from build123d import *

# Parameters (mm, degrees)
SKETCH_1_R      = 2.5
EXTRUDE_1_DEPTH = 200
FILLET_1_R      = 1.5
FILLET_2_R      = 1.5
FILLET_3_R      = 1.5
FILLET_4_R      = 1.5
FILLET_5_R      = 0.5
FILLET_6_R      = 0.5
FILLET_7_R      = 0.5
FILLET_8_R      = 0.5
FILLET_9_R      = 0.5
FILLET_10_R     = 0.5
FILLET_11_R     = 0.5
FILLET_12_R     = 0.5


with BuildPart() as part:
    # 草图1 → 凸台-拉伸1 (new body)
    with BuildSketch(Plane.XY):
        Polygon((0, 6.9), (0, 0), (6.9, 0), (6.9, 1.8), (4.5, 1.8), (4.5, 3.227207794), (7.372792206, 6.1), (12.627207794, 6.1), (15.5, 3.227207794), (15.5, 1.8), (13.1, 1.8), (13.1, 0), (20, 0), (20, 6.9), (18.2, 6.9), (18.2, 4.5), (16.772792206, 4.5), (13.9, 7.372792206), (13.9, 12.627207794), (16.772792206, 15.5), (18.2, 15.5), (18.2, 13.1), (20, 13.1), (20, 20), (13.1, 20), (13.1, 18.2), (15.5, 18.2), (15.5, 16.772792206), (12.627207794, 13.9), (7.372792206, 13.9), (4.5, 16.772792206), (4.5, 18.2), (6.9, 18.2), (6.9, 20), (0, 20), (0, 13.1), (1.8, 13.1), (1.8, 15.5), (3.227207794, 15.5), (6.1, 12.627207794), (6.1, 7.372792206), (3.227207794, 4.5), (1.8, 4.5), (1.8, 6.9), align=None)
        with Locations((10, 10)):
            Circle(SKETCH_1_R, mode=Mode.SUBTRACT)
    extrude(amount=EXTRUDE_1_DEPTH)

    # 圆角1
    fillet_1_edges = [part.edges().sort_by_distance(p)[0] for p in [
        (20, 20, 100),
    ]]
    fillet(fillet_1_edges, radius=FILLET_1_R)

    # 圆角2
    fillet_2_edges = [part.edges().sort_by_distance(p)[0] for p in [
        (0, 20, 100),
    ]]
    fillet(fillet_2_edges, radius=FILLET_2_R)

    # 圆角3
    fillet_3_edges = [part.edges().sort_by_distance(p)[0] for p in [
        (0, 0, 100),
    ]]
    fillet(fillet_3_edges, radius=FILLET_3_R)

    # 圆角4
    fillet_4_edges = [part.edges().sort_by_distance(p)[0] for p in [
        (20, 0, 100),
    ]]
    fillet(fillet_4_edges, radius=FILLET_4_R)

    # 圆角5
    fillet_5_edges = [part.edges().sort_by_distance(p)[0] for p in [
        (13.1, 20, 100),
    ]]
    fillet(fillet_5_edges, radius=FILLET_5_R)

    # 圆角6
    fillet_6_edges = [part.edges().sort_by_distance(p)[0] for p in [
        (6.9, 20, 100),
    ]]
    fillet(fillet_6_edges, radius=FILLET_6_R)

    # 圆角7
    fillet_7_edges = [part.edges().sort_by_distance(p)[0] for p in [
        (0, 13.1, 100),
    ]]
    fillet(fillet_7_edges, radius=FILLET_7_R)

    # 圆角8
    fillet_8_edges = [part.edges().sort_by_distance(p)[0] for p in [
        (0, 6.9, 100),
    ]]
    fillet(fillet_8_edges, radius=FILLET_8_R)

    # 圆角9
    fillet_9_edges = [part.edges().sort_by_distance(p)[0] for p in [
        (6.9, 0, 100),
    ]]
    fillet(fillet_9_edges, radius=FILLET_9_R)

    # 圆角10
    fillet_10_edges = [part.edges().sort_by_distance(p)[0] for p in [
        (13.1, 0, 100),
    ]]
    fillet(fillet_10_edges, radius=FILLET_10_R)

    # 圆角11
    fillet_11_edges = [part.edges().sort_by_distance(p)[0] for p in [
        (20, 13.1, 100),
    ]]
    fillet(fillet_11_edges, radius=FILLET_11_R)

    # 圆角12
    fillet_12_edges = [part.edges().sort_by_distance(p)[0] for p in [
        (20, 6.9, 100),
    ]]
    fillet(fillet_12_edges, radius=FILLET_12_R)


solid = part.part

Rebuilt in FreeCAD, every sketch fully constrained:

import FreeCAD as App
import Part
import Sketcher

V = App.Vector


def edges_at(feature, points):
    """Names of the edges that pass closest to the given points."""
    edges = feature.Shape.Edges
    near = lambda p: min(range(len(edges)), key=lambda i: edges[i].distToShape(Part.Vertex(*p))[0])
    return sorted({f"Edge{near(p) + 1}" for p in points})

doc = App.newDocument("Part")
body = doc.addObject("PartDesign::Body", "Body")

# Sketch on XY plane
sketch1 = doc.addObject("Sketcher::SketchObject", "Sketch")
body.addObject(sketch1)
sketch1.AttachmentSupport = (doc.XY_Plane, [""])
sketch1.MapMode = "FlatFace"
sketch1.addGeometry(Part.LineSegment(V(0, 6.9, 0), V(0, 0, 0)), False)
sketch1.addGeometry(Part.LineSegment(V(0, 0, 0), V(6.9, 0, 0)), False)
sketch1.addGeometry(Part.LineSegment(V(6.9, 0, 0), V(6.9, 1.8, 0)), False)
sketch1.addGeometry(Part.LineSegment(V(6.9, 1.8, 0), V(4.5, 1.8, 0)), False)
sketch1.addGeometry(Part.LineSegment(V(4.5, 1.8, 0), V(4.5, 3.227208, 0)), False)
sketch1.addGeometry(Part.LineSegment(V(4.5, 3.227208, 0), V(7.372792, 6.1, 0)), False)
sketch1.addGeometry(Part.LineSegment(V(7.372792, 6.1, 0), V(12.627208, 6.1, 0)), False)
sketch1.addGeometry(Part.LineSegment(V(12.627208, 6.1, 0), V(15.5, 3.227208, 0)), False)
sketch1.addGeometry(Part.LineSegment(V(15.5, 3.227208, 0), V(15.5, 1.8, 0)), False)
sketch1.addGeometry(Part.LineSegment(V(15.5, 1.8, 0), V(13.1, 1.8, 0)), False)
sketch1.addGeometry(Part.LineSegment(V(13.1, 1.8, 0), V(13.1, 0, 0)), False)
sketch1.addGeometry(Part.LineSegment(V(13.1, 0, 0), V(20, 0, 0)), False)
sketch1.addGeometry(Part.LineSegment(V(20, 0, 0), V(20, 6.9, 0)), False)
sketch1.addGeometry(Part.LineSegment(V(20, 6.9, 0), V(18.2, 6.9, 0)), False)
sketch1.addGeometry(Part.LineSegment(V(18.2, 6.9, 0), V(18.2, 4.5, 0)), False)
sketch1.addGeometry(Part.LineSegment(V(18.2, 4.5, 0), V(16.772792, 4.5, 0)), False)
sketch1.addGeometry(Part.LineSegment(V(16.772792, 4.5, 0), V(13.9, 7.372792, 0)), False)
sketch1.addGeometry(Part.LineSegment(V(13.9, 7.372792, 0), V(13.9, 12.627208, 0)), False)
sketch1.addGeometry(Part.LineSegment(V(13.9, 12.627208, 0), V(16.772792, 15.5, 0)), False)
sketch1.addGeometry(Part.LineSegment(V(16.772792, 15.5, 0), V(18.2, 15.5, 0)), False)
sketch1.addGeometry(Part.LineSegment(V(18.2, 15.5, 0), V(18.2, 13.1, 0)), False)
sketch1.addGeometry(Part.LineSegment(V(18.2, 13.1, 0), V(20, 13.1, 0)), False)
sketch1.addGeometry(Part.LineSegment(V(20, 13.1, 0), V(20, 20, 0)), False)
sketch1.addGeometry(Part.LineSegment(V(20, 20, 0), V(13.1, 20, 0)), False)
sketch1.addGeometry(Part.LineSegment(V(13.1, 20, 0), V(13.1, 18.2, 0)), False)
sketch1.addGeometry(Part.LineSegment(V(13.1, 18.2, 0), V(15.5, 18.2, 0)), False)
sketch1.addGeometry(Part.LineSegment(V(15.5, 18.2, 0), V(15.5, 16.772792, 0)), False)
sketch1.addGeometry(Part.LineSegment(V(15.5, 16.772792, 0), V(12.627208, 13.9, 0)), False)
sketch1.addGeometry(Part.LineSegment(V(12.627208, 13.9, 0), V(7.372792, 13.9, 0)), False)
sketch1.addGeometry(Part.LineSegment(V(7.372792, 13.9, 0), V(4.5, 16.772792, 0)), False)
sketch1.addGeometry(Part.LineSegment(V(4.5, 16.772792, 0), V(4.5, 18.2, 0)), False)
sketch1.addGeometry(Part.LineSegment(V(4.5, 18.2, 0), V(6.9, 18.2, 0)), False)
sketch1.addGeometry(Part.LineSegment(V(6.9, 18.2, 0), V(6.9, 20, 0)), False)
sketch1.addGeometry(Part.LineSegment(V(6.9, 20, 0), V(0, 20, 0)), False)
sketch1.addGeometry(Part.LineSegment(V(0, 20, 0), V(0, 13.1, 0)), False)
sketch1.addGeometry(Part.LineSegment(V(0, 13.1, 0), V(1.8, 13.1, 0)), False)
sketch1.addGeometry(Part.LineSegment(V(1.8, 13.1, 0), V(1.8, 15.5, 0)), False)
sketch1.addGeometry(Part.LineSegment(V(1.8, 15.5, 0), V(3.227208, 15.5, 0)), False)
sketch1.addGeometry(Part.LineSegment(V(3.227208, 15.5, 0), V(6.1, 12.627208, 0)), False)
sketch1.addGeometry(Part.LineSegment(V(6.1, 12.627208, 0), V(6.1, 7.372792, 0)), False)
sketch1.addGeometry(Part.LineSegment(V(6.1, 7.372792, 0), V(3.227208, 4.5, 0)), False)
sketch1.addGeometry(Part.LineSegment(V(3.227208, 4.5, 0), V(1.8, 4.5, 0)), False)
sketch1.addGeometry(Part.LineSegment(V(1.8, 4.5, 0), V(1.8, 6.9, 0)), False)
sketch1.addGeometry(Part.LineSegment(V(1.8, 6.9, 0), V(0, 6.9, 0)), False)
sketch1.addGeometry(Part.Circle(V(10, 10, 0), V(0, 0, 1), 2.5), False)
sketch1.addConstraint(Sketcher.Constraint("Coincident", 0, 2, 1, 1))
sketch1.addConstraint(Sketcher.Constraint("Coincident", 1, 2, 2, 1))
sketch1.addConstraint(Sketcher.Constraint("Coincident", 2, 2, 3, 1))
sketch1.addConstraint(Sketcher.Constraint("Coincident", 3, 2, 4, 1))
sketch1.addConstraint(Sketcher.Constraint("Coincident", 4, 2, 5, 1))
sketch1.addConstraint(Sketcher.Constraint("Coincident", 5, 2, 6, 1))
sketch1.addConstraint(Sketcher.Constraint("Coincident", 6, 2, 7, 1))
sketch1.addConstraint(Sketcher.Constraint("Coincident", 7, 2, 8, 1))
sketch1.addConstraint(Sketcher.Constraint("Coincident", 8, 2, 9, 1))
sketch1.addConstraint(Sketcher.Constraint("Coincident", 9, 2, 10, 1))
sketch1.addConstraint(Sketcher.Constraint("Coincident", 10, 2, 11, 1))
sketch1.addConstraint(Sketcher.Constraint("Coincident", 11, 2, 12, 1))
sketch1.addConstraint(Sketcher.Constraint("Coincident", 12, 2, 13, 1))
sketch1.addConstraint(Sketcher.Constraint("Coincident", 13, 2, 14, 1))
sketch1.addConstraint(Sketcher.Constraint("Coincident", 14, 2, 15, 1))
sketch1.addConstraint(Sketcher.Constraint("Coincident", 15, 2, 16, 1))
sketch1.addConstraint(Sketcher.Constraint("Coincident", 16, 2, 17, 1))
sketch1.addConstraint(Sketcher.Constraint("Coincident", 17, 2, 18, 1))
sketch1.addConstraint(Sketcher.Constraint("Coincident", 18, 2, 19, 1))
sketch1.addConstraint(Sketcher.Constraint("Coincident", 19, 2, 20, 1))
sketch1.addConstraint(Sketcher.Constraint("Coincident", 20, 2, 21, 1))
sketch1.addConstraint(Sketcher.Constraint("Coincident", 21, 2, 22, 1))
sketch1.addConstraint(Sketcher.Constraint("Coincident", 22, 2, 23, 1))
sketch1.addConstraint(Sketcher.Constraint("Coincident", 23, 2, 24, 1))
sketch1.addConstraint(Sketcher.Constraint("Coincident", 24, 2, 25, 1))
sketch1.addConstraint(Sketcher.Constraint("Coincident", 25, 2, 26, 1))
sketch1.addConstraint(Sketcher.Constraint("Coincident", 26, 2, 27, 1))
sketch1.addConstraint(Sketcher.Constraint("Coincident", 27, 2, 28, 1))
sketch1.addConstraint(Sketcher.Constraint("Coincident", 28, 2, 29, 1))
sketch1.addConstraint(Sketcher.Constraint("Coincident", 29, 2, 30, 1))
sketch1.addConstraint(Sketcher.Constraint("Coincident", 30, 2, 31, 1))
sketch1.addConstraint(Sketcher.Constraint("Coincident", 31, 2, 32, 1))
sketch1.addConstraint(Sketcher.Constraint("Coincident", 32, 2, 33, 1))
sketch1.addConstraint(Sketcher.Constraint("Coincident", 33, 2, 34, 1))
sketch1.addConstraint(Sketcher.Constraint("Coincident", 34, 2, 35, 1))
sketch1.addConstraint(Sketcher.Constraint("Coincident", 35, 2, 36, 1))
sketch1.addConstraint(Sketcher.Constraint("Coincident", 36, 2, 37, 1))
sketch1.addConstraint(Sketcher.Constraint("Coincident", 37, 2, 38, 1))
sketch1.addConstraint(Sketcher.Constraint("Coincident", 38, 2, 39, 1))
sketch1.addConstraint(Sketcher.Constraint("Coincident", 39, 2, 40, 1))
sketch1.addConstraint(Sketcher.Constraint("Coincident", 40, 2, 41, 1))
sketch1.addConstraint(Sketcher.Constraint("Coincident", 41, 2, 42, 1))
sketch1.addConstraint(Sketcher.Constraint("Coincident", 42, 2, 43, 1))
sketch1.addConstraint(Sketcher.Constraint("Coincident", 43, 2, 0, 1))
sketch1.addConstraint(Sketcher.Constraint("Vertical", 0))
sketch1.addConstraint(Sketcher.Constraint("Horizontal", 1))
sketch1.addConstraint(Sketcher.Constraint("Vertical", 2))
sketch1.addConstraint(Sketcher.Constraint("Horizontal", 3))
sketch1.addConstraint(Sketcher.Constraint("Vertical", 4))
sketch1.addConstraint(Sketcher.Constraint("Horizontal", 6))
sketch1.addConstraint(Sketcher.Constraint("Vertical", 8))
sketch1.addConstraint(Sketcher.Constraint("Horizontal", 9))
sketch1.addConstraint(Sketcher.Constraint("Vertical", 10))
sketch1.addConstraint(Sketcher.Constraint("Horizontal", 11))
sketch1.addConstraint(Sketcher.Constraint("Vertical", 12))
sketch1.addConstraint(Sketcher.Constraint("Horizontal", 13))
sketch1.addConstraint(Sketcher.Constraint("Vertical", 14))
sketch1.addConstraint(Sketcher.Constraint("Horizontal", 15))
sketch1.addConstraint(Sketcher.Constraint("Vertical", 17))
sketch1.addConstraint(Sketcher.Constraint("Horizontal", 19))
sketch1.addConstraint(Sketcher.Constraint("Vertical", 20))
sketch1.addConstraint(Sketcher.Constraint("Horizontal", 21))
sketch1.addConstraint(Sketcher.Constraint("Vertical", 22))
sketch1.addConstraint(Sketcher.Constraint("Horizontal", 23))
sketch1.addConstraint(Sketcher.Constraint("Vertical", 24))
sketch1.addConstraint(Sketcher.Constraint("Horizontal", 25))
sketch1.addConstraint(Sketcher.Constraint("Vertical", 26))
sketch1.addConstraint(Sketcher.Constraint("Horizontal", 28))
sketch1.addConstraint(Sketcher.Constraint("Vertical", 30))
sketch1.addConstraint(Sketcher.Constraint("Horizontal", 31))
sketch1.addConstraint(Sketcher.Constraint("Vertical", 32))
sketch1.addConstraint(Sketcher.Constraint("Horizontal", 33))
sketch1.addConstraint(Sketcher.Constraint("Vertical", 34))
sketch1.addConstraint(Sketcher.Constraint("Horizontal", 35))
sketch1.addConstraint(Sketcher.Constraint("Vertical", 36))
sketch1.addConstraint(Sketcher.Constraint("Horizontal", 37))
sketch1.addConstraint(Sketcher.Constraint("Vertical", 39))
sketch1.addConstraint(Sketcher.Constraint("Horizontal", 41))
sketch1.addConstraint(Sketcher.Constraint("Vertical", 42))
sketch1.addConstraint(Sketcher.Constraint("Horizontal", 43))
sketch1.addConstraint(Sketcher.Constraint("Coincident", 0, 2, -1, 1))
sketch1.addConstraint(Sketcher.Constraint("PointOnObject", 10, 2, -1))
sketch1.addConstraint(Sketcher.Constraint("PointOnObject", 33, 2, -2))
sketch1.addConstraint(Sketcher.Constraint("Perpendicular", 5, 7))
sketch1.addConstraint(Sketcher.Constraint("Parallel", 7, 16))
sketch1.addConstraint(Sketcher.Constraint("Perpendicular", 16, 18))
sketch1.addConstraint(Sketcher.Constraint("Parallel", 18, 27))
sketch1.addConstraint(Sketcher.Constraint("Perpendicular", 27, 29))
sketch1.addConstraint(Sketcher.Constraint("Parallel", 29, 38))
sketch1.addConstraint(Sketcher.Constraint("Perpendicular", 38, 40))
sketch1.addConstraint(Sketcher.Constraint("Horizontal", 4, 2, 7, 2))
sketch1.addConstraint(Sketcher.Constraint("Horizontal", 3, 2, 8, 2))
sketch1.addConstraint(Sketcher.Constraint("Horizontal", 26, 2, 29, 2))
sketch1.addConstraint(Sketcher.Constraint("Horizontal", 25, 2, 30, 2))
sketch1.addConstraint(Sketcher.Constraint("Horizontal", 23, 2, 32, 2))
sketch1.addConstraint(Sketcher.Constraint("Horizontal", 21, 2, 34, 2))
sketch1.addConstraint(Sketcher.Constraint("Horizontal", 19, 2, 36, 2))
sketch1.addConstraint(Sketcher.Constraint("Horizontal", 17, 2, 38, 2))
sketch1.addConstraint(Sketcher.Constraint("Horizontal", 16, 2, 39, 2))
sketch1.addConstraint(Sketcher.Constraint("Horizontal", 15, 2, 40, 2))
sketch1.addConstraint(Sketcher.Constraint("Horizontal", 13, 2, 42, 2))
sketch1.addConstraint(Sketcher.Constraint("Vertical", 15, 2, 18, 2))
sketch1.addConstraint(Sketcher.Constraint("Vertical", 14, 2, 19, 2))
sketch1.addConstraint(Sketcher.Constraint("Vertical", 12, 2, 21, 2))
sketch1.addConstraint(Sketcher.Constraint("Vertical", 10, 2, 23, 2))
sketch1.addConstraint(Sketcher.Constraint("Vertical", 8, 2, 25, 2))
sketch1.addConstraint(Sketcher.Constraint("Vertical", 6, 2, 27, 2))
sketch1.addConstraint(Sketcher.Constraint("Vertical", 5, 2, 28, 2))
sketch1.addConstraint(Sketcher.Constraint("Vertical", 4, 2, 29, 2))
sketch1.addConstraint(Sketcher.Constraint("Vertical", 2, 2, 31, 2))
sketch1.addConstraint(Sketcher.Constraint("Vertical", 36, 2, 41, 2))
sketch1.addConstraint(Sketcher.Constraint("Equal", 3, 9))
sketch1.addConstraint(Sketcher.Constraint("Equal", 1, 11))
sketch1.addConstraint(Sketcher.Constraint("Equal", 21, 35))
sketch1.addConstraint(Sketcher.Constraint("Equal", 19, 37))
sketch1.addConstraint(Sketcher.Constraint("Equal", 33, 0))
sketch1.addConstraint(Sketcher.Constraint("Equal", 43, 2))
sketch1.addConstraint(Sketcher.Constraint("Equal", 41, 4))
sketch1.addConstraint(Sketcher.Constraint("Equal", 31, 14))
sketch1.addConstraint(Sketcher.Constraint("Equal", 28, 17))
sketch1.addConstraint(Sketcher.Constraint("Equal", 14, 20))
sketch1.addConstraint(Sketcher.Constraint("Equal", 12, 22))
sketch1.addConstraint(Sketcher.Constraint("Equal", 10, 24))
sketch1.addConstraint(Sketcher.Constraint("Equal", 8, 26))
sketch1.addConstraint(Sketcher.Constraint("Equal", 7, 16))
sketch1.addConstraint(Sketcher.Constraint("Diameter", 44, 5.0))
sketch1.addConstraint(Sketcher.Constraint("DistanceX", 1, 1, 1, 2, 6.9))
sketch1.addConstraint(Sketcher.Constraint("DistanceX", 3, 2, 3, 1, 2.4))
sketch1.addConstraint(Sketcher.Constraint("DistanceX", 13, 2, 13, 1, 1.8))
sketch1.addConstraint(Sketcher.Constraint("DistanceX", -1, 1, 44, 3, 10.0))
sketch1.addConstraint(Sketcher.Constraint("DistanceY", -1, 1, 44, 3, 10.0))
sketch1.addConstraint(Sketcher.Constraint("DistanceX", -1, 1, 11, 2, 20.0))
sketch1.addConstraint(Sketcher.Constraint("DistanceY", -1, 1, 5, 2, 6.1))
sketch1.addConstraint(Sketcher.Constraint("Distance", 5, 4.062742))
pad1 = doc.addObject("PartDesign::Pad", "Pad")
body.addObject(pad1)
pad1.Profile = sketch1
pad1.Length = 200
doc.recompute()

fillet = doc.addObject("PartDesign::Fillet", "Fillet")
body.addObject(fillet)
fillet.Base = (pad1, edges_at(pad1, [(20, 20, 100)]))
fillet.Radius = 1.5
doc.recompute()

fillet2 = doc.addObject("PartDesign::Fillet", "Fillet001")
body.addObject(fillet2)
fillet2.Base = (fillet, edges_at(fillet, [(0, 20, 100)]))
fillet2.Radius = 1.5
doc.recompute()

fillet3 = doc.addObject("PartDesign::Fillet", "Fillet002")
body.addObject(fillet3)
fillet3.Base = (fillet2, edges_at(fillet2, [(0, 0, 100)]))
fillet3.Radius = 1.5
doc.recompute()

fillet4 = doc.addObject("PartDesign::Fillet", "Fillet003")
body.addObject(fillet4)
fillet4.Base = (fillet3, edges_at(fillet3, [(20, 0, 100)]))
fillet4.Radius = 1.5
doc.recompute()

fillet5 = doc.addObject("PartDesign::Fillet", "Fillet004")
body.addObject(fillet5)
fillet5.Base = (fillet4, edges_at(fillet4, [(13.1, 20, 100)]))
fillet5.Radius = 0.5
doc.recompute()

fillet6 = doc.addObject("PartDesign::Fillet", "Fillet005")
body.addObject(fillet6)
fillet6.Base = (fillet5, edges_at(fillet5, [(6.9, 20, 100)]))
fillet6.Radius = 0.5
doc.recompute()

fillet7 = doc.addObject("PartDesign::Fillet", "Fillet006")
body.addObject(fillet7)
fillet7.Base = (fillet6, edges_at(fillet6, [(0, 13.1, 100)]))
fillet7.Radius = 0.5
doc.recompute()

fillet8 = doc.addObject("PartDesign::Fillet", "Fillet007")
body.addObject(fillet8)
fillet8.Base = (fillet7, edges_at(fillet7, [(0, 6.9, 100)]))
fillet8.Radius = 0.5
doc.recompute()

fillet9 = doc.addObject("PartDesign::Fillet", "Fillet008")
body.addObject(fillet9)
fillet9.Base = (fillet8, edges_at(fillet8, [(6.9, 0, 100)]))
fillet9.Radius = 0.5
doc.recompute()

fillet10 = doc.addObject("PartDesign::Fillet", "Fillet009")
body.addObject(fillet10)
fillet10.Base = (fillet9, edges_at(fillet9, [(13.1, 0, 100)]))
fillet10.Radius = 0.5
doc.recompute()

fillet11 = doc.addObject("PartDesign::Fillet", "Fillet010")
body.addObject(fillet11)
fillet11.Base = (fillet10, edges_at(fillet10, [(20, 13.1, 100)]))
fillet11.Radius = 0.5
doc.recompute()

fillet12 = doc.addObject("PartDesign::Fillet", "Fillet011")
body.addObject(fillet12)
fillet12.Base = (fillet11, edges_at(fillet11, [(20, 6.9, 100)]))
fillet12.Radius = 0.5

doc.recompute()
